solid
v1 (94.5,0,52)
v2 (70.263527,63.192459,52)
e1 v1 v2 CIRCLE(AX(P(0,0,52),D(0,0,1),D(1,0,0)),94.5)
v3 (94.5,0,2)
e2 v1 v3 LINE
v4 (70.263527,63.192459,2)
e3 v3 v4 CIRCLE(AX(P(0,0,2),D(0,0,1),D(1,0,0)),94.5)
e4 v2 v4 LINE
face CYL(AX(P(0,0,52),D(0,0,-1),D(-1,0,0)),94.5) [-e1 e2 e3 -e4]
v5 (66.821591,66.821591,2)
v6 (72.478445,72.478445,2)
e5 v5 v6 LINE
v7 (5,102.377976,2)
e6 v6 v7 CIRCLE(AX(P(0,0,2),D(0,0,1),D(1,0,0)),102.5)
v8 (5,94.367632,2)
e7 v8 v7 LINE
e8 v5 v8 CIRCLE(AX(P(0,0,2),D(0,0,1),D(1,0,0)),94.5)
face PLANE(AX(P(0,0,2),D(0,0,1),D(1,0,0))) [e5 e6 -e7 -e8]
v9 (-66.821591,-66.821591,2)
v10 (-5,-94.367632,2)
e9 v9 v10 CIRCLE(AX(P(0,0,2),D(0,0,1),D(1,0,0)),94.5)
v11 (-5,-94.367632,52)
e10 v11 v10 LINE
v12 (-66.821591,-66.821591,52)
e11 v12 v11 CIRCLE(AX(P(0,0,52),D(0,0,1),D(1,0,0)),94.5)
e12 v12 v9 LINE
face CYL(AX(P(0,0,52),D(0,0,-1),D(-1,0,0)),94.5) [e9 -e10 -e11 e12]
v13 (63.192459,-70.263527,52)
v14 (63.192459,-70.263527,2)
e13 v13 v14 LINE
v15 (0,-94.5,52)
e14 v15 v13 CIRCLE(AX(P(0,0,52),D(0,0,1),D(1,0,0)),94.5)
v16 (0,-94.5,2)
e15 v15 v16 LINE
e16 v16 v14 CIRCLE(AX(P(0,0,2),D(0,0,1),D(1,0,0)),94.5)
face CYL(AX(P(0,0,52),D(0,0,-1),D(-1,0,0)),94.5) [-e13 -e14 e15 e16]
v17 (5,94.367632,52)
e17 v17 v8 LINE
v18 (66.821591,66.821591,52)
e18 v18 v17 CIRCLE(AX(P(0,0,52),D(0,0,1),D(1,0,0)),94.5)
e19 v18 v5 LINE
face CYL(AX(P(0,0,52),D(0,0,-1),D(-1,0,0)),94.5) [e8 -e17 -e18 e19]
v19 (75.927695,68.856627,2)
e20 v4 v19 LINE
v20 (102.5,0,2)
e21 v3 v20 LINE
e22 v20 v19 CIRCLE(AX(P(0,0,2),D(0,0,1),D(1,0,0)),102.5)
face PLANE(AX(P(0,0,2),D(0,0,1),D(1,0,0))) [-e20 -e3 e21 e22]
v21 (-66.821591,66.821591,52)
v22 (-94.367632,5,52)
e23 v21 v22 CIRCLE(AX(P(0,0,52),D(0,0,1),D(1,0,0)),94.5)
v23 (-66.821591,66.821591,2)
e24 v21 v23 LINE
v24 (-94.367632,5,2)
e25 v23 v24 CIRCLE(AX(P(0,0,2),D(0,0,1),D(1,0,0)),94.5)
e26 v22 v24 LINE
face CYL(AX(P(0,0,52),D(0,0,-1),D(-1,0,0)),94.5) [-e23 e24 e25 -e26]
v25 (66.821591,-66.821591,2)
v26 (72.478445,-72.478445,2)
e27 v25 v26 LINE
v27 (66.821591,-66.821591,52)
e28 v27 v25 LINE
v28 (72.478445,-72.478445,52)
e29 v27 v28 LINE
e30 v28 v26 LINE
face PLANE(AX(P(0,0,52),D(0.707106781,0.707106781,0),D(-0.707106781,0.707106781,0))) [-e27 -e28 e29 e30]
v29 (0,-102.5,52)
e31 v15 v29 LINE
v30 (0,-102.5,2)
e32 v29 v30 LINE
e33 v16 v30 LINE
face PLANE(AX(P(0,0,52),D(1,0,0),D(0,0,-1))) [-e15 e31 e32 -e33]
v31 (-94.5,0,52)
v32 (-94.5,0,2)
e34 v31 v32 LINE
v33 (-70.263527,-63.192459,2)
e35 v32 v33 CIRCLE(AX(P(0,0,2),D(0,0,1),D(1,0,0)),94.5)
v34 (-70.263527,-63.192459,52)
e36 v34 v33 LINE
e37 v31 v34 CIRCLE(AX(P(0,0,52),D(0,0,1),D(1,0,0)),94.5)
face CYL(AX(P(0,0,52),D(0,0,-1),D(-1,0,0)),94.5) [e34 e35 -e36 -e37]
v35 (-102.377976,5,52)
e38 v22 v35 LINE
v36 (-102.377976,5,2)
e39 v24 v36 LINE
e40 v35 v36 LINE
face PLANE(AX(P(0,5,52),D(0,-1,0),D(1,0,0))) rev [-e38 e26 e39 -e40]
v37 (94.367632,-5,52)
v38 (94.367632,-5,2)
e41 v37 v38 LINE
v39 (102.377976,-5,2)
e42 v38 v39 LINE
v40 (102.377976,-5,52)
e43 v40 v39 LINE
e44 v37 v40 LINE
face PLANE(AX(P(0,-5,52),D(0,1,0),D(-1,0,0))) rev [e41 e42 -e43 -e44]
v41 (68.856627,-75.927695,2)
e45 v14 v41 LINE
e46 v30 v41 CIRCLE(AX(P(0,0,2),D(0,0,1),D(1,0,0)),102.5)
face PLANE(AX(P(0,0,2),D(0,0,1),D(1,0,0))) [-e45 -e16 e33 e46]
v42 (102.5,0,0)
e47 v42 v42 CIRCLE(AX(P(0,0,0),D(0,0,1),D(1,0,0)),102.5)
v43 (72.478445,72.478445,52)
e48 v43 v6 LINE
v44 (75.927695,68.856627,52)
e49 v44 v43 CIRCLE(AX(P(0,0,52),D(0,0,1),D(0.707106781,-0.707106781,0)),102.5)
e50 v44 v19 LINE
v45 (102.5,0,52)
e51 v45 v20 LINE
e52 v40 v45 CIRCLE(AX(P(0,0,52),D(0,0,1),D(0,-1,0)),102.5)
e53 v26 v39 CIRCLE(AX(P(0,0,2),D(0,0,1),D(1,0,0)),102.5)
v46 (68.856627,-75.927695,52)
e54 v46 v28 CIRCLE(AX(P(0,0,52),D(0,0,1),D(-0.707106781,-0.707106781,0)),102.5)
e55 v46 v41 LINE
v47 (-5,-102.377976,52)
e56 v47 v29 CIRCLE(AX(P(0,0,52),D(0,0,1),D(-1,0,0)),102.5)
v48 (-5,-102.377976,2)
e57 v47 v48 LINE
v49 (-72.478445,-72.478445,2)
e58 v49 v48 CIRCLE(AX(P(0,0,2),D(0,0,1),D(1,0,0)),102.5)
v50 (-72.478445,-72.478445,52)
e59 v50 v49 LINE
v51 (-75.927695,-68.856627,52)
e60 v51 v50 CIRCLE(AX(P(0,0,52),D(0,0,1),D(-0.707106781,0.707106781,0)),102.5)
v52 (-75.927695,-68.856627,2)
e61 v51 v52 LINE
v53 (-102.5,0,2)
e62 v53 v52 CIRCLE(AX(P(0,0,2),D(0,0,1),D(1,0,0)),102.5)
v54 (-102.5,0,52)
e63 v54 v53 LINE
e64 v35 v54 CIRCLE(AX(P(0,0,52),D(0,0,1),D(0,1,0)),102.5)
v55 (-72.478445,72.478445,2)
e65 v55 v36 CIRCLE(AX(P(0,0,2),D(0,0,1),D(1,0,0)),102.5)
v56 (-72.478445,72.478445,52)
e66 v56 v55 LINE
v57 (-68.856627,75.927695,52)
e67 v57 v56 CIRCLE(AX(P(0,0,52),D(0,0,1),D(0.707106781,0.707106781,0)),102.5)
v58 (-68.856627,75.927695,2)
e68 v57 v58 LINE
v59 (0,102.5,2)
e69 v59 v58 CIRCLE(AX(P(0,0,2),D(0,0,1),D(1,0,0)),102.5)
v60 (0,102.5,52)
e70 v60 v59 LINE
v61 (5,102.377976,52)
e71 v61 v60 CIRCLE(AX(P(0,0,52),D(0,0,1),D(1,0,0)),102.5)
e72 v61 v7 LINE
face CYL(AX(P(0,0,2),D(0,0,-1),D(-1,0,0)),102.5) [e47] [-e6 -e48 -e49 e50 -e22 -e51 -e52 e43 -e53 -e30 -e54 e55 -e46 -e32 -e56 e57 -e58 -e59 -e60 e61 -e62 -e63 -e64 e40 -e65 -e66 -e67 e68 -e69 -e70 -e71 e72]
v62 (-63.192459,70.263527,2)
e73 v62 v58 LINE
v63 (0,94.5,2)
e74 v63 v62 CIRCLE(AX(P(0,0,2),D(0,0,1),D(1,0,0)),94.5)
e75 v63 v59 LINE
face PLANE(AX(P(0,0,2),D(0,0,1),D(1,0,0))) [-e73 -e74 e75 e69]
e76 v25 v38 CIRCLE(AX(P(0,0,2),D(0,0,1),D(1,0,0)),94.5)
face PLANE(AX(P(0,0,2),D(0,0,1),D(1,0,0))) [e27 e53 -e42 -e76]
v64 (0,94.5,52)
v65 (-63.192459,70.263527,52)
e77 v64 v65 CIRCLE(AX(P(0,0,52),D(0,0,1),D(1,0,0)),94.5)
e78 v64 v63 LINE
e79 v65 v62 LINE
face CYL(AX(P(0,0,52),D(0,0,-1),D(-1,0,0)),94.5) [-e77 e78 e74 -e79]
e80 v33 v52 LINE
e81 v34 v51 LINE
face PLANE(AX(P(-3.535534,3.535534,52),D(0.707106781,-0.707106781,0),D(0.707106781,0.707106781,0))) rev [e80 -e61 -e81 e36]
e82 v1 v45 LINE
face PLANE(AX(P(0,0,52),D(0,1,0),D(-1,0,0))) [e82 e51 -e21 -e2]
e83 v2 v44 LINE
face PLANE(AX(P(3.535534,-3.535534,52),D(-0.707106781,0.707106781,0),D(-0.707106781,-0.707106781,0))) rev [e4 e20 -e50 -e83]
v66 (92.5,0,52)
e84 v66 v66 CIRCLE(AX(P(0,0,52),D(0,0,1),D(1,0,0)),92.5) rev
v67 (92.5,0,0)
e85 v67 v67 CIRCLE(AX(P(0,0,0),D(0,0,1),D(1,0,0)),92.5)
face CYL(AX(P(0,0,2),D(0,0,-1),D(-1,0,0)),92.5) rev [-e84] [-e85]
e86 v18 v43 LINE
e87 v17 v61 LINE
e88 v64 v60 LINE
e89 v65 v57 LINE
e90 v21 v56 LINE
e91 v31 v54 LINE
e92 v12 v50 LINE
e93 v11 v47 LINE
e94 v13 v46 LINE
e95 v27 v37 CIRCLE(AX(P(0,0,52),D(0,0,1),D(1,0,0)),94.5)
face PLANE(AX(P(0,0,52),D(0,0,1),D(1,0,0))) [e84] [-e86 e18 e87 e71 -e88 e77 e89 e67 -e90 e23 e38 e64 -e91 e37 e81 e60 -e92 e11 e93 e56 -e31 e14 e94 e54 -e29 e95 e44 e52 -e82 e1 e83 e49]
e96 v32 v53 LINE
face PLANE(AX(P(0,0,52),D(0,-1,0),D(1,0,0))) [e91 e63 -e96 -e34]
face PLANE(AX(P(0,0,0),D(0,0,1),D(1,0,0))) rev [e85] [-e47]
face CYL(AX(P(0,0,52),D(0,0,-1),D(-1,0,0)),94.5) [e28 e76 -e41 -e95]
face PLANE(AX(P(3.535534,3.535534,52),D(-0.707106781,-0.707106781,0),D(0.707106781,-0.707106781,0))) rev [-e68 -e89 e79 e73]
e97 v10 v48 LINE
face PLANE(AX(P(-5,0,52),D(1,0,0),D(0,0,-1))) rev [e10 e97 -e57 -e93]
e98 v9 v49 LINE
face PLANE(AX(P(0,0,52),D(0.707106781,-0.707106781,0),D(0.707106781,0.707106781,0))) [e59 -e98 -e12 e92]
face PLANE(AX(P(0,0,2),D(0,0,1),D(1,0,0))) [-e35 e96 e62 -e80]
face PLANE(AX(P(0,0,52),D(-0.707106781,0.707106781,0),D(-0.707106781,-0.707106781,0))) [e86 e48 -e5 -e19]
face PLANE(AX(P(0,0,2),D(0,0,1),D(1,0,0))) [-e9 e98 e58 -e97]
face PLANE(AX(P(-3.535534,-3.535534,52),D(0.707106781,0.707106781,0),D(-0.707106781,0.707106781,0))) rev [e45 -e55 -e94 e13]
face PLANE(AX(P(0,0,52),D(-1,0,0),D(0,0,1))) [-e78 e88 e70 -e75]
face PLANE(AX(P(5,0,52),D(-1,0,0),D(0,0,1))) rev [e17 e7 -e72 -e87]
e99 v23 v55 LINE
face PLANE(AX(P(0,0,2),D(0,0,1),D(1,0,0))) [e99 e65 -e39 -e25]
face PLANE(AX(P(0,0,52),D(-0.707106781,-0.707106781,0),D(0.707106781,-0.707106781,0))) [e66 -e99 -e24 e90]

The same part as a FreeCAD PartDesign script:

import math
import FreeCAD as App
import Part
import Sketcher

V = App.Vector
Q = App.Units.Quantity

doc = App.newDocument("Part")
body = doc.addObject("PartDesign::Body", "Body")

# Sketch on XY plane
sketch1 = body.newObject("Sketcher::SketchObject", "Sketch")
sketch1.AttachmentSupport = (doc.getObject("XY_Plane"), [""])
sketch1.MapMode = "FlatFace"
sketch1.addGeometry(Part.Circle(V(0, 0, 0), V(0, 0, 1), 102), False)
sketch1.addGeometry(Part.Circle(V(0, 0, 0), V(0, 0, 1), 92), False)
sketch1.addConstraint(Sketcher.Constraint("Coincident", 0, 3, -1, 1))
sketch1.addConstraint(Sketcher.Constraint("Coincident", 1, 3, -1, 1))
sketch1.addConstraint(Sketcher.Constraint("Diameter", 0, Q("205 mm")))
sketch1.addConstraint(Sketcher.Constraint("Diameter", 1, Q("185 mm")))
pad1 = body.newObject("PartDesign::Pad", "Pad")
pad1.Profile = sketch1
pad1.Length = 2

# Sketch on XY plane
sketch2 = body.newObject("Sketcher::SketchObject", "Sketch001")
sketch2.AttachmentSupport = (doc.getObject("XY_Plane"), [""])
sketch2.MapMode = "FlatFace"
sketch2.AttachmentOffset = App.Placement(V(0, 0, 2), App.Rotation())
sketch2.addGeometry(Part.Circle(V(0, 0, 0), V(0, 0, 1), 94), False)
sketch2.addGeometry(Part.Circle(V(0, 0, 0), V(0, 0, 1), 92), False)
sketch2.addConstraint(Sketcher.Constraint("Coincident", 0, 3, -1, 1))
sketch2.addConstraint(Sketcher.Constraint("Coincident", 1, 3, -1, 1))
sketch2.addConstraint(Sketcher.Constraint("Diameter", 0, Q("189 mm")))
sketch2.addConstraint(Sketcher.Constraint("Diameter", 1, Q("185 mm")))
pad2 = body.newObject("PartDesign::Pad", "Pad001")
pad2.Profile = sketch2
pad2.Length = 50

# Sketch on XY plane
sketch3 = body.newObject("Sketcher::SketchObject", "Sketch002")
sketch3.AttachmentSupport = (doc.getObject("XY_Plane"), [""])
sketch3.MapMode = "FlatFace"
sketch3.AttachmentOffset = App.Placement(V(0, 0, 2), App.Rotation())
sketch3.addGeometry(Part.LineSegment(V(0, 102, 0), V(0, 94, 0)), False)
sketch3.addGeometry(Part.ArcOfCircle(Part.Circle(V(0, 0, 0), V(0, 0, 1), 94), math.radians(86.97), math.radians(90)), False)
sketch3.addGeometry(Part.LineSegment(V(5, 94, 0), V(5, 102, 0)), False)
sketch3.addGeometry(Part.ArcOfCircle(Part.Circle(V(0, 0, 0), V(0, 0, 1), 102), math.radians(87.2), math.radians(90)), False)
sketch3.addConstraint(Sketcher.Constraint("Coincident", 0, 2, 1, 2))
sketch3.addConstraint(Sketcher.Constraint("Coincident", 1, 1, 2, 1))
sketch3.addConstraint(Sketcher.Constraint("Coincident", 2, 2, 3, 1))
sketch3.addConstraint(Sketcher.Constraint("Coincident", 3, 2, 0, 1))
sketch3.addConstraint(Sketcher.Constraint("Vertical", 0))
sketch3.addConstraint(Sketcher.Constraint("Vertical", 2))
sketch3.addConstraint(Sketcher.Constraint("Coincident", 1, 3, -1, 1))
sketch3.addConstraint(Sketcher.Constraint("Coincident", 3, 3, -1, 1))
sketch3.addConstraint(Sketcher.Constraint("PointOnObject", 0, 2, -2))
sketch3.addConstraint(Sketcher.Constraint("Radius", 1, Q("94.499999 mm")))
sketch3.addConstraint(Sketcher.Constraint("Radius", 3, Q("102.499999 mm")))
sketch3.addConstraint(Sketcher.Constraint("DistanceX", -1, 1, 1, 1, Q("5 mm")))
pad3 = body.newObject("PartDesign::Pad", "Pad002")
pad3.Profile = sketch3
pad3.Length = 50
doc.recompute()

polarpattern = body.newObject("PartDesign::PolarPattern", "PolarPattern")
polarpattern.Originals = [pad3]
polarpattern.Axis = (doc.getObject("Z_Axis"), [""])
polarpattern.Angle = 360
polarpattern.Occurrences = 8
body.Tip = polarpattern

doc.recompute()
